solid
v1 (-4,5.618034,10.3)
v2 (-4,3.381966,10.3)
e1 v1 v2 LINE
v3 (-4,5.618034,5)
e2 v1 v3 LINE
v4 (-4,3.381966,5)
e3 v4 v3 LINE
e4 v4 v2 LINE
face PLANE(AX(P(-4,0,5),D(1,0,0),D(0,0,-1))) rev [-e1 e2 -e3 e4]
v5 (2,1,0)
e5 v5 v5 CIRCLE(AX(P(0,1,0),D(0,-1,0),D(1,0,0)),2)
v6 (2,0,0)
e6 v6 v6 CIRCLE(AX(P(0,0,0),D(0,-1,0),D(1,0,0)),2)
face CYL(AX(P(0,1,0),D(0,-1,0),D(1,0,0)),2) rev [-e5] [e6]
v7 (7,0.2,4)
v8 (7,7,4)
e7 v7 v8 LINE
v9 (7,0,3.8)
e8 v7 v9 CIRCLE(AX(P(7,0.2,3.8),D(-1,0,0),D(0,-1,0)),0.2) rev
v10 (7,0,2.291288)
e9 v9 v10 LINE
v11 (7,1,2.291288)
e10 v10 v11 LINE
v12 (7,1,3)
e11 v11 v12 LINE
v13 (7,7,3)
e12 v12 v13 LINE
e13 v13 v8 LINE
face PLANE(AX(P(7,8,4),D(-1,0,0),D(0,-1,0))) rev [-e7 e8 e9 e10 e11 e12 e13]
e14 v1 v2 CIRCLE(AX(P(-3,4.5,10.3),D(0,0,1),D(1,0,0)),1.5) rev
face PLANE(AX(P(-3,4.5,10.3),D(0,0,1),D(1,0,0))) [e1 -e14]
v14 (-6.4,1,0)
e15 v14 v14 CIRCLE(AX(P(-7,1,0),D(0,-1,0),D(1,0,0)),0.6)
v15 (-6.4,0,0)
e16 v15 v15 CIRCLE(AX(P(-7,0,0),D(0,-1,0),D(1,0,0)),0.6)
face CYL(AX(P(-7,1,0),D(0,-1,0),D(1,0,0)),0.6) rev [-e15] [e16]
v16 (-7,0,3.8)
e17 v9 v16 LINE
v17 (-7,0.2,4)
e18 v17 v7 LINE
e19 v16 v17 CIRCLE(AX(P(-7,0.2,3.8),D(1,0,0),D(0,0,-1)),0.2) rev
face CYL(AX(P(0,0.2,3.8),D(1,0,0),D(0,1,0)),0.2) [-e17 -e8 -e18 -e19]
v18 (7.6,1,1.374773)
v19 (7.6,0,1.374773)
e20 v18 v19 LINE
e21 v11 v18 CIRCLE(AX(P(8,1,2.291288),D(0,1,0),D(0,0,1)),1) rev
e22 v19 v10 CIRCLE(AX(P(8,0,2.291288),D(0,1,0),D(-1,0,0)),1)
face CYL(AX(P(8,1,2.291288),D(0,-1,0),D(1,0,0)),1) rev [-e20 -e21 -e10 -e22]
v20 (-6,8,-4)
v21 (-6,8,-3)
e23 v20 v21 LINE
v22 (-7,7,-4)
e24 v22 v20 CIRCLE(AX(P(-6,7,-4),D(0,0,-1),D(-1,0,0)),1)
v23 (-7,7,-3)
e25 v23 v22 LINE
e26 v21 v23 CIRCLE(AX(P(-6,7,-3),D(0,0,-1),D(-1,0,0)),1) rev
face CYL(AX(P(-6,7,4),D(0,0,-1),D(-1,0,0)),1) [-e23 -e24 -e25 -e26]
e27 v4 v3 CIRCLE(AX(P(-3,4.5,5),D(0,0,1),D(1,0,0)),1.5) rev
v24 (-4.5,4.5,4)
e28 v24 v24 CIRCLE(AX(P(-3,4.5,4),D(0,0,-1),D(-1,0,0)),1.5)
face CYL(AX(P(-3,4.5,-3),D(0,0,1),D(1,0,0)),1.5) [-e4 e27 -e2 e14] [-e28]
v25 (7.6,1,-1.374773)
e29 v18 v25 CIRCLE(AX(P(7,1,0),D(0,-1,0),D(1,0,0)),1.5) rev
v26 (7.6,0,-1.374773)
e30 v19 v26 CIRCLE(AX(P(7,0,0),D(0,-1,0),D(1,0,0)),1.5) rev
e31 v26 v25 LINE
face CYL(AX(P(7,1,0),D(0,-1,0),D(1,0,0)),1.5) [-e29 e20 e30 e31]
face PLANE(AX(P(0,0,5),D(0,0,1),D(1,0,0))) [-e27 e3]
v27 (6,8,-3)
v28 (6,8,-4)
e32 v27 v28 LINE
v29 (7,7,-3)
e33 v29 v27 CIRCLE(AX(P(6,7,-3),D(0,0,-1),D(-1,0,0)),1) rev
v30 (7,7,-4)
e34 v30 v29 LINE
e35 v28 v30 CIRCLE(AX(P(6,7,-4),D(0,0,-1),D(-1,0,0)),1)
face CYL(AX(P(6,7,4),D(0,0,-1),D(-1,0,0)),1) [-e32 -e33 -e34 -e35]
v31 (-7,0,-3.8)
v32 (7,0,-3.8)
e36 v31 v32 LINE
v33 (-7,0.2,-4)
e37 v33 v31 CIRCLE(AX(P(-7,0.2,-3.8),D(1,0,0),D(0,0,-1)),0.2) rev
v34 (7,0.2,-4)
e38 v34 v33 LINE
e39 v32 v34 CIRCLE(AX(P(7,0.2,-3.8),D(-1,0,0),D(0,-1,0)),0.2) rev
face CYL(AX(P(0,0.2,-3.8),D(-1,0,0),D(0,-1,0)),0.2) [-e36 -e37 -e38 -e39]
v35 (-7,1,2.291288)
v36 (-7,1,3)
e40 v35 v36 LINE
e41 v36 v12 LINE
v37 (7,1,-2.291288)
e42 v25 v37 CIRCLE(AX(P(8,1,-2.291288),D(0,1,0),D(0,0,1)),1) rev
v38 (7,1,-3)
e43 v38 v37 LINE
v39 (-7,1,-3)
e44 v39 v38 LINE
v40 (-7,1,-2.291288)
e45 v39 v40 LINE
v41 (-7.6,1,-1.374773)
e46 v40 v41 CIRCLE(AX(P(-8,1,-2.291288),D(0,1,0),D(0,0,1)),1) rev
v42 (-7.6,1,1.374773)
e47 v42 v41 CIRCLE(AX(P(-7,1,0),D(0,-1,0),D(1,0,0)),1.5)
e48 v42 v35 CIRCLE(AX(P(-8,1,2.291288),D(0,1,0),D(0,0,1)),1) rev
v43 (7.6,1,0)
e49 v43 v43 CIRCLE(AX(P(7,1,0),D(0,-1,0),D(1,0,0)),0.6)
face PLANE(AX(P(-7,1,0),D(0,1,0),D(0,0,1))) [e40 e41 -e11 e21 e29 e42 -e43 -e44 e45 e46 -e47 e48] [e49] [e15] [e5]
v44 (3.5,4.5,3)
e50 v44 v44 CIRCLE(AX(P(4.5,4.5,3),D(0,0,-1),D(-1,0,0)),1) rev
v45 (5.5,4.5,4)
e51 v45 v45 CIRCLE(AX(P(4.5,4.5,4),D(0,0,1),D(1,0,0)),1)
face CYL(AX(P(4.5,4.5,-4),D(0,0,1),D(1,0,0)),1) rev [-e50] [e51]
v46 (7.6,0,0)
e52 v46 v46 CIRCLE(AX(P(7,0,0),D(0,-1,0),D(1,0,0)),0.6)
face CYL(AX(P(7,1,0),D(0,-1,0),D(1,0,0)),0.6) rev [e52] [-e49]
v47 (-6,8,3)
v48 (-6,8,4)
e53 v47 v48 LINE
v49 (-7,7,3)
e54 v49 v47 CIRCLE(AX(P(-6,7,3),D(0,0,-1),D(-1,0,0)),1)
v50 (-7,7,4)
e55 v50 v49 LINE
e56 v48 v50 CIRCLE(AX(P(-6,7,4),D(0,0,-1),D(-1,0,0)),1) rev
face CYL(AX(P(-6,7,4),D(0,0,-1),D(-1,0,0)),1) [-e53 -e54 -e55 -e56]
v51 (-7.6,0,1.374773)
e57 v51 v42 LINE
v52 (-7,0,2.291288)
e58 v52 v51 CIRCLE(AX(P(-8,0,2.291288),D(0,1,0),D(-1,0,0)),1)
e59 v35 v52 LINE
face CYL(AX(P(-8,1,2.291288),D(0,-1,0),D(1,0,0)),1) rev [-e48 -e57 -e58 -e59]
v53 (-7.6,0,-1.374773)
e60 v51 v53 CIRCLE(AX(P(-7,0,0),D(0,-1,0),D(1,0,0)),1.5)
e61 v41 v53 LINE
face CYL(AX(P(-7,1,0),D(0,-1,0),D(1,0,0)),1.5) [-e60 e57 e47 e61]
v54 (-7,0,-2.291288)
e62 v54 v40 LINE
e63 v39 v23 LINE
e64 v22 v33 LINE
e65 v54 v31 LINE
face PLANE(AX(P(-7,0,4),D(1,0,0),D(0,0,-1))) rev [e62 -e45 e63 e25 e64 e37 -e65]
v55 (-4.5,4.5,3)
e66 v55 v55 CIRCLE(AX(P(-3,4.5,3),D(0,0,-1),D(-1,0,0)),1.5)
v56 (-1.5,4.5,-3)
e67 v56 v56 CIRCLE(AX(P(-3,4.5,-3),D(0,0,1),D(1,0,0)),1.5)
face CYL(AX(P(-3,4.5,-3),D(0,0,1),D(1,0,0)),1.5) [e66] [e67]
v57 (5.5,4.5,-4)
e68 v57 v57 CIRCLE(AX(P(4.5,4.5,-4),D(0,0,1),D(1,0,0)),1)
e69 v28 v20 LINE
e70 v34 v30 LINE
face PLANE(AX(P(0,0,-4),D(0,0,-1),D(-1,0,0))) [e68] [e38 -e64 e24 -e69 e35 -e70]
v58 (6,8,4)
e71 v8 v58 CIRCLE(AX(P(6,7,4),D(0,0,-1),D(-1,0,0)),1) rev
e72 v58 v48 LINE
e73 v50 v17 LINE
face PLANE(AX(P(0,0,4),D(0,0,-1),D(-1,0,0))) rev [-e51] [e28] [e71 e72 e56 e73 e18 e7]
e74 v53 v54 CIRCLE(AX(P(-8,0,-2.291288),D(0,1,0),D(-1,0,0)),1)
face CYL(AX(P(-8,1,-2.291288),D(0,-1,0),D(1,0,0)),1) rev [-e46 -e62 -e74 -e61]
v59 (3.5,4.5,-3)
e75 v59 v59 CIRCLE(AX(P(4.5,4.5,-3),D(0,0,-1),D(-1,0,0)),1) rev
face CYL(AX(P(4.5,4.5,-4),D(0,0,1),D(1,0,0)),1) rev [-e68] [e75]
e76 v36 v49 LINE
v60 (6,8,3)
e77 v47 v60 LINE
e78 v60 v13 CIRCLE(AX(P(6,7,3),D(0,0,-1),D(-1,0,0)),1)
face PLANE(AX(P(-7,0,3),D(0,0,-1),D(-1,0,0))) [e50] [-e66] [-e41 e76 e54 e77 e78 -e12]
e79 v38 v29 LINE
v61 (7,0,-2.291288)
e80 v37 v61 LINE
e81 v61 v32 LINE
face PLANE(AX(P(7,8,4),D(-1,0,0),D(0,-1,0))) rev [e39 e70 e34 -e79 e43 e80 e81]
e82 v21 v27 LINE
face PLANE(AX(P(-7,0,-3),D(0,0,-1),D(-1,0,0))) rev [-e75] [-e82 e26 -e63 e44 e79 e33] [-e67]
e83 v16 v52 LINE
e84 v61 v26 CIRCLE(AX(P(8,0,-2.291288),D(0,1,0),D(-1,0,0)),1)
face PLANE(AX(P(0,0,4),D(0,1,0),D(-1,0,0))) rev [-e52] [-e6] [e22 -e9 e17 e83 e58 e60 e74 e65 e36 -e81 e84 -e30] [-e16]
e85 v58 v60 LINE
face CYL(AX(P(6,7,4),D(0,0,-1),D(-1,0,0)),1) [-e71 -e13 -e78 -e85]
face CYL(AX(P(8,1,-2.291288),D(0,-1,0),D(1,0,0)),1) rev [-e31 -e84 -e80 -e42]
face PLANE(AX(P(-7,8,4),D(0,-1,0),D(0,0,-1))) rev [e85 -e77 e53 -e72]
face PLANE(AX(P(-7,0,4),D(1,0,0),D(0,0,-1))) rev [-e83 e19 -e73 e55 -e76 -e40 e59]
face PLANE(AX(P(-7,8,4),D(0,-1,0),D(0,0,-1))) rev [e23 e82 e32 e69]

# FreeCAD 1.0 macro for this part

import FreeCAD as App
import Part
import Sketcher

V = App.Vector
Q = App.Units.Quantity


def edges_at(feature, points):
    """Names of the edges that pass closest to the given points."""
    edges = feature.Shape.Edges
    near = lambda p: min(range(len(edges)), key=lambda i: edges[i].distToShape(Part.Vertex(*p))[0])
    return sorted({f"Edge{near(p) + 1}" for p in points})


def add_polygon(sketch, points):
    """Adds a closed chain of lines whose ends are joined by coincident constraints."""
    first, n = sketch.GeometryCount, len(points)
    for a, b in zip(points, points[1:] + points[:1]):
        sketch.addGeometry(Part.LineSegment(App.Vector(*a, 0), App.Vector(*b, 0)), False)
    for i in range(n):
        sketch.addConstraint(Sketcher.Constraint("Coincident", first + i, 2, first + (i + 1) % n, 1))

doc = App.newDocument("Part")
body = doc.addObject("PartDesign::Body", "Body")

# Sketch on XY plane
sketch1 = body.newObject("Sketcher::SketchObject", "Sketch")
sketch1.AttachmentSupport = (doc.getObject("XY_Plane"), [""])
sketch1.MapMode = "FlatFace"
add_polygon(sketch1, [(-7, 0), (7, 0), (7, 8), (-7, 8)])  # lines 0-3
sketch1.addConstraint([
    Sketcher.Constraint("Horizontal", 0),
    Sketcher.Constraint("Vertical", 1),
    Sketcher.Constraint("Horizontal", 2),
    Sketcher.Constraint("Vertical", 3),
    Sketcher.Constraint("Symmetric", 0, 2, 3, 2, -1, 1),
    Sketcher.Constraint("DistanceX", 0, 1, 0, 2, Q("14 mm")),
    Sketcher.Constraint("DistanceY", 1, 1, 1, 2, Q("8 mm")),
])
pad1 = body.newObject("PartDesign::Pad", "Pad")
pad1.Profile = sketch1
pad1.Length = 8
pad1.Midplane = True

# Sketch on XY plane
sketch2 = body.newObject("Sketcher::SketchObject", "Sketch001")
sketch2.AttachmentSupport = (doc.getObject("XY_Plane"), [""])
sketch2.MapMode = "FlatFace"
sketch2.addGeometry(Part.Circle(V(4.5, 4.5, 0), V(0, 0, 1), 1), False)
sketch2.addConstraint([
    Sketcher.Constraint("Diameter", 0, Q("2 mm")),
    Sketcher.Constraint("DistanceX", -1, 1, 0, 3, Q("4.5 mm")),
    Sketcher.Constraint("DistanceY", -1, 1, 0, 3, Q("4.5 mm")),
])
pocket1 = body.newObject("PartDesign::Pocket", "Pocket")
pocket1.Profile = sketch2
pocket1.Type = "ThroughAll"
pocket1.Midplane = True

# Sketch on YZ plane
sketch3 = body.newObject("Sketcher::SketchObject", "Sketch002")
sketch3.AttachmentSupport = (doc.getObject("YZ_Plane"), [""])
sketch3.MapMode = "FlatFace"
add_polygon(sketch3, [(10, 3), (1, 3), (1, -3), (10, -3)])  # lines 0-3
sketch3.addConstraint([
    Sketcher.Constraint("Horizontal", 0),
    Sketcher.Constraint("Vertical", 1),
    Sketcher.Constraint("Horizontal", 2),
    Sketcher.Constraint("Vertical", 3),
    Sketcher.Constraint("DistanceY", 1, 2, 1, 1, Q("6 mm")),
    Sketcher.Constraint("DistanceX", -1, 1, 0, 2, Q("1 mm")),
    Sketcher.Constraint("DistanceY", -1, 1, 0, 2, Q("3 mm")),
    Sketcher.Constraint("DistanceX", 0, 2, 0, 1, Q("8.732029 mm")),
])
pocket2 = body.newObject("PartDesign::Pocket", "Pocket001")
pocket2.Profile = sketch3
pocket2.Type = "ThroughAll"
pocket2.Midplane = True
doc.recompute()

fillet = body.newObject("PartDesign::Fillet", "Fillet")
fillet.Base = (pocket2, edges_at(pocket2, [(0, 0, 4), (0, 0, -4)]))
fillet.Radius = 0.2
doc.recompute()

fillet2 = body.newObject("PartDesign::Fillet", "Fillet001")
fillet2.Base = (fillet, edges_at(fillet, [
    (-7, 8, -3.5),
    (7, 8, -3.5),
    (-7, 8, 3.5),
    (7, 8, 3.5),
]))
fillet2.Radius = 1

# Sketch on XY plane
sketch4 = body.newObject("Sketcher::SketchObject", "Sketch003")
sketch4.AttachmentSupport = (doc.getObject("XY_Plane"), [""])
sketch4.MapMode = "FlatFace"
sketch4.addGeometry(Part.Circle(V(-3, 4.5, 0), V(0, 0, 1), 1.5), False)
sketch4.addConstraint([
    Sketcher.Constraint("Diameter", 0, Q("3 mm")),
    Sketcher.Constraint("DistanceX", 0, 3, -1, 1, Q("3 mm")),
    Sketcher.Constraint("DistanceY", -1, 1, 0, 3, Q("4.5 mm")),
])
pad2 = body.newObject("PartDesign::Pad", "Pad001")
pad2.Profile = sketch4
pad2.Type = "TwoLengths"
pad2.Length = 14
pad2.Length2 = 3

# Sketch on XY plane
sketch5 = body.newObject("Sketcher::SketchObject", "Sketch004")
sketch5.AttachmentSupport = (doc.getObject("XY_Plane"), [""])
sketch5.MapMode = "FlatFace"
sketch5.AttachmentOffset = App.Placement(V(0, 0, 14), App.Rotation())
add_polygon(sketch5, [(-4, 6.1), (-5, 6.1), (-5, 2.5), (-4, 2.5)])  # lines 0-3
sketch5.addConstraint([
    Sketcher.Constraint("Horizontal", 0),
    Sketcher.Constraint("Vertical", 1),
    Sketcher.Constraint("Horizontal", 2),
    Sketcher.Constraint("Vertical", 3),
    Sketcher.Constraint("DistanceX", 2, 2, -1, 1, Q("4 mm")),
    Sketcher.Constraint("DistanceY", -1, 1, 1, 2, Q("2.5 mm")),
    Sketcher.Constraint("DistanceX", 0, 2, 0, 1, Q("0.956444 mm")),
    Sketcher.Constraint("DistanceY", 1, 2, 1, 1, Q("3.560686 mm")),
])
pocket3 = body.newObject("PartDesign::Pocket", "Pocket002")
pocket3.Profile = sketch5
pocket3.Length = 9

# Sketch on XZ plane
sketch6 = body.newObject("Sketcher::SketchObject", "Sketch005")
sketch6.AttachmentSupport = (doc.getObject("XZ_Plane"), [""])
sketch6.MapMode = "FlatFace"
sketch6.addGeometry([
    Part.Circle(V(-7, 0, 0), V(0, 0, 1), 1.5),
    Part.Circle(V(7, 0, 0), V(0, 0, 1), 1.5),
], False)
sketch6.addConstraint([
    Sketcher.Constraint("Equal", 0, 1),
    Sketcher.Constraint("Symmetric", 0, 3, 1, 3, -1, 1),
    Sketcher.Constraint("PointOnObject", 0, 3, -1),
    Sketcher.Constraint("Diameter", 0, Q("3 mm")),
    Sketcher.Constraint("DistanceX", 0, 3, -1, 1, Q("7 mm")),
])
pad3 = body.newObject("PartDesign::Pad", "Pad002")
pad3.Profile = sketch6
pad3.Length = 1
pad3.Reversed = True

# Sketch on XZ plane
sketch7 = body.newObject("Sketcher::SketchObject", "Sketch006")
sketch7.AttachmentSupport = (doc.getObject("XZ_Plane"), [""])
sketch7.MapMode = "FlatFace"
sketch7.addGeometry([
    Part.Circle(V(-7, 0, 0), V(0, 0, 1), 0.6),
    Part.Circle(V(7, 0, 0), V(0, 0, 1), 0.6),
], False)
sketch7.addConstraint([
    Sketcher.Constraint("Equal", 0, 1),
    Sketcher.Constraint("Symmetric", 0, 3, 1, 3, -1, 1),
    Sketcher.Constraint("PointOnObject", 0, 3, -1),
    Sketcher.Constraint("Diameter", 0, Q("1.2 mm")),
    Sketcher.Constraint("DistanceX", 0, 3, -1, 1, Q("7 mm")),
])
pocket4 = body.newObject("PartDesign::Pocket", "Pocket003")
pocket4.Profile = sketch7
pocket4.Length = 1
doc.recompute()

fillet3 = body.newObject("PartDesign::Fillet", "Fillet002")
fillet3.Base = (pocket4, edges_at(pocket4, [
    (7, 0.5, -1.5),
    (7, 0.5, 1.5),
    (-7, 0.5, 1.5),
    (-7, 0.5, -1.5),
]))
fillet3.Radius = 1

# Sketch on XZ plane
sketch8 = body.newObject("Sketcher::SketchObject", "Sketch007")
sketch8.AttachmentSupport = (doc.getObject("XZ_Plane"), [""])
sketch8.MapMode = "FlatFace"
sketch8.addGeometry(Part.Circle(V(0, 0, 0), V(0, 0, 1), 2), False)
sketch8.addConstraint([
    Sketcher.Constraint("Coincident", 0, 3, -1, 1),
    Sketcher.Constraint("Diameter", 0, Q("4 mm")),
])
pocket5 = body.newObject("PartDesign::Pocket", "Pocket004")
pocket5.Profile = sketch8
pocket5.Length = 1

# Sketch on XY plane
sketch9 = body.newObject("Sketcher::SketchObject", "Sketch008")
sketch9.AttachmentSupport = (doc.getObject("XY_Plane"), [""])
sketch9.MapMode = "FlatFace"
sketch9.AttachmentOffset = App.Placement(V(0, 0, 10.3), App.Rotation())
sketch9.addGeometry(Part.Circle(V(-3, 4.5, 0), V(0, 0, 1), 2.2), False)
sketch9.addConstraint([
    Sketcher.Constraint("DistanceX", 0, 3, -1, 1, Q("3 mm")),
    Sketcher.Constraint("Diameter", 0, Q("4.345101 mm")),
    Sketcher.Constraint("DistanceY", -1, 1, 0, 3, Q("4.5 mm")),
])
pocket6 = body.newObject("PartDesign::Pocket", "Pocket005")
pocket6.Profile = sketch9
pocket6.Length = 10
pocket6.Reversed = True

doc.recompute()
